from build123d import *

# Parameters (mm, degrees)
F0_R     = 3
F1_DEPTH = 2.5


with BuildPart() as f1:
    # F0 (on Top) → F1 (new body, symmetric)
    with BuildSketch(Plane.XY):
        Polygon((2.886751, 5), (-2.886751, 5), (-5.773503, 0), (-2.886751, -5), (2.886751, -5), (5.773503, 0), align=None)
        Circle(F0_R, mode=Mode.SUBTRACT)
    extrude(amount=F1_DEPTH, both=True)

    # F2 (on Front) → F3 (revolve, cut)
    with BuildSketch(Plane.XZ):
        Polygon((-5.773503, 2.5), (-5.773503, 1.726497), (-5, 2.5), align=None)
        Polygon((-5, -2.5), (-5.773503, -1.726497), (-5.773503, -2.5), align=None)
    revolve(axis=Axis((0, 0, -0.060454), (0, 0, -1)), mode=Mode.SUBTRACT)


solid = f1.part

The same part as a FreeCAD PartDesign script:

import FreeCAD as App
import Part
import Sketcher
Q = App.Units.Quantity

doc = App.newDocument("Part")
body = doc.addObject("PartDesign::Body", "Body")

# Sketch on XY plane
sketch1 = doc.addObject("Sketcher::SketchObject", "Sketch")
body.addObject(sketch1)
sketch1.AttachmentSupport = (doc.XY_Plane, [""])
sketch1.MapMode = "FlatFace"
sketch1.addGeometry(Part.LineSegment(App.Vector(2.886751, 5, 0), App.Vector(-2.886751, 5, 0)), False)
sketch1.addGeometry(Part.LineSegment(App.Vector(-2.886751, 5, 0), App.Vector(-5.773503, 0, 0)), False)
sketch1.addGeometry(Part.LineSegment(App.Vector(-5.773503, 0, 0), App.Vector(-2.886751, -5, 0)), False)
sketch1.addGeometry(Part.LineSegment(App.Vector(-2.886751, -5, 0), App.Vector(2.886751, -5, 0)), False)
sketch1.addGeometry(Part.LineSegment(App.Vector(2.886751, -5, 0), App.Vector(5.773503, 0, 0)), False)
sketch1.addGeometry(Part.LineSegment(App.Vector(5.773503, 0, 0), App.Vector(2.886751, 5, 0)), False)
sketch1.addGeometry(Part.Circle(App.Vector(0, 0, 0), App.Vector(0, 0, 1), 3), False)
sketch1.addConstraint(Sketcher.Constraint("Coincident", 0, 2, 1, 1))
sketch1.addConstraint(Sketcher.Constraint("Coincident", 1, 2, 2, 1))
sketch1.addConstraint(Sketcher.Constraint("Coincident", 2, 2, 3, 1))
sketch1.addConstraint(Sketcher.Constraint("Coincident", 3, 2, 4, 1))
sketch1.addConstraint(Sketcher.Constraint("Coincident", 4, 2, 5, 1))
sketch1.addConstraint(Sketcher.Constraint("Coincident", 5, 2, 0, 1))
sketch1.addConstraint(Sketcher.Constraint("Horizontal", 0))
sketch1.addConstraint(Sketcher.Constraint("Horizontal", 3))
sketch1.addConstraint(Sketcher.Constraint("Coincident", 6, 3, -1, 1))
sketch1.addConstraint(Sketcher.Constraint("Symmetric", 0, 2, 3, 2, -1, 1))
sketch1.addConstraint(Sketcher.Constraint("Symmetric", 1, 2, 4, 2, -1, 1))
sketch1.addConstraint(Sketcher.Constraint("PointOnObject", 1, 2, -1))
sketch1.addConstraint(Sketcher.Constraint("Parallel", 2, 5))
sketch1.addConstraint(Sketcher.Constraint("Vertical", 0, 2, 2, 2))
sketch1.addConstraint(Sketcher.Constraint("Diameter", 6, 6.0))
sketch1.addConstraint(Sketcher.Constraint("Angle", 1, Q("-120.000006 deg")))
sketch1.addConstraint(Sketcher.Constraint("DistanceY", -1, 1, 0, 2, 5.0))
sketch1.addConstraint(Sketcher.Constraint("DistanceX", 0, 2, 0, 1, 5.773502))
pad1 = doc.addObject("PartDesign::Pad", "Pad")
body.addObject(pad1)
pad1.Profile = sketch1
pad1.Length = 5
pad1.Midplane = True

# Sketch on XZ plane
sketch2 = doc.addObject("Sketcher::SketchObject", "Sketch001")
body.addObject(sketch2)
sketch2.AttachmentSupport = (doc.XZ_Plane, [""])
sketch2.MapMode = "FlatFace"
sketch2.addGeometry(Part.LineSegment(App.Vector(-5.773503, 2.5, 0), App.Vector(-5.773503, 1.726497, 0)), False)
sketch2.addGeometry(Part.LineSegment(App.Vector(-5.773503, 1.726497, 0), App.Vector(-5, 2.5, 0)), False)
sketch2.addGeometry(Part.LineSegment(App.Vector(-5, 2.5, 0), App.Vector(-5.773503, 2.5, 0)), False)
sketch2.addGeometry(Part.LineSegment(App.Vector(-5, -2.5, 0), App.Vector(-5.773503, -1.726497, 0)), False)
sketch2.addGeometry(Part.LineSegment(App.Vector(-5.773503, -1.726497, 0), App.Vector(-5.773503, -2.5, 0)), False)
sketch2.addGeometry(Part.LineSegment(App.Vector(-5.773503, -2.5, 0), App.Vector(-5, -2.5, 0)), False)
sketch2.addConstraint(Sketcher.Constraint("Coincident", 0, 2, 1, 1))
sketch2.addConstraint(Sketcher.Constraint("Coincident", 1, 2, 2, 1))
sketch2.addConstraint(Sketcher.Constraint("Coincident", 2, 2, 0, 1))
sketch2.addConstraint(Sketcher.Constraint("Coincident", 3, 2, 4, 1))
sketch2.addConstraint(Sketcher.Constraint("Coincident", 4, 2, 5, 1))
sketch2.addConstraint(Sketcher.Constraint("Coincident", 5, 2, 3, 1))
sketch2.addConstraint(Sketcher.Constraint("Vertical", 0))
sketch2.addConstraint(Sketcher.Constraint("Horizontal", 2))
sketch2.addConstraint(Sketcher.Constraint("Vertical", 4))
sketch2.addConstraint(Sketcher.Constraint("Horizontal", 5))
sketch2.addConstraint(Sketcher.Constraint("Symmetric", 0, 2, 3, 2, -1))
sketch2.addConstraint(Sketcher.Constraint("Symmetric", 1, 2, 5, 2, -1))
sketch2.addConstraint(Sketcher.Constraint("Perpendicular", 1, 3))
sketch2.addConstraint(Sketcher.Constraint("DistanceX", 1, 2, -1, 1, 5.0))
sketch2.addConstraint(Sketcher.Constraint("DistanceY", 4, 2, 2, 2, 5.0))
sketch2.addConstraint(Sketcher.Constraint("Distance", 1, 1.093898))
groove = doc.addObject("PartDesign::Groove", "Groove")
body.addObject(groove)
groove.Profile = sketch2
groove.ReferenceAxis = (sketch2, ["V_Axis"])
groove.Angle = 360

doc.recompute()
